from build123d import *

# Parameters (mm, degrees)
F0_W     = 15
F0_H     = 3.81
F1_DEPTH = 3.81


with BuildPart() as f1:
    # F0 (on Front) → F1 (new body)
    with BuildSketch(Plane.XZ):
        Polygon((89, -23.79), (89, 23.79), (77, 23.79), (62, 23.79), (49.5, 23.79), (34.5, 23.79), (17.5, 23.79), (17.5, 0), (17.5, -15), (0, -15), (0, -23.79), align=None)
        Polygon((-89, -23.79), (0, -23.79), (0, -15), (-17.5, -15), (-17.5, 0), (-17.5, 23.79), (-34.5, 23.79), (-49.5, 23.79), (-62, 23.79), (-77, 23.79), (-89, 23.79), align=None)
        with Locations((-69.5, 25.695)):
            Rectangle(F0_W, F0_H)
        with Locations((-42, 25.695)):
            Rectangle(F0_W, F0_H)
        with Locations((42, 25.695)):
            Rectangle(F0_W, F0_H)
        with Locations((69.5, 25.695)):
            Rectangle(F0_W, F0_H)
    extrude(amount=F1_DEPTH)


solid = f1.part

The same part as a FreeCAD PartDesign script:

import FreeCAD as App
import Part
import Sketcher

doc = App.newDocument("Part")
params = doc.addObject("Spreadsheet::Sheet", "Params")
for row, (alias, value) in enumerate([
    ("sketch1_width", "12 mm"),
    ("sketch1_width2", "15 mm"),
    ("sketch1_width3", "17 mm"),
    ("sketch1_width4", "35 mm"),
    ("sketch1_width5", "178 mm"),
    ("pad1_length", "3.81 mm"),
], start=1):
    params.set(f"A{row}", alias)
    params.set(f"B{row}", "=" + value)
    params.setAlias(f"B{row}", alias)

body = doc.addObject("PartDesign::Body", "Body")

# Sketch on XZ plane
sketch1 = doc.addObject("Sketcher::SketchObject", "Sketch")
body.addObject(sketch1)
sketch1.AttachmentSupport = (doc.XZ_Plane, [""])
sketch1.MapMode = "FlatFace"
sketch1.addGeometry(Part.LineSegment(App.Vector(89, -23.8, 0), App.Vector(89, 23.8, 0)), False)
sketch1.addGeometry(Part.LineSegment(App.Vector(89, 23.8, 0), App.Vector(77, 23.8, 0)), False)
sketch1.addGeometry(Part.LineSegment(App.Vector(77, 23.8, 0), App.Vector(77, 27.6, 0)), False)
sketch1.addGeometry(Part.LineSegment(App.Vector(77, 27.6, 0), App.Vector(62, 27.6, 0)), False)
sketch1.addGeometry(Part.LineSegment(App.Vector(62, 27.6, 0), App.Vector(62, 23.8, 0)), False)
sketch1.addGeometry(Part.LineSegment(App.Vector(62, 23.8, 0), App.Vector(49.5, 23.8, 0)), False)
sketch1.addGeometry(Part.LineSegment(App.Vector(49.5, 23.8, 0), App.Vector(49.5, 27.6, 0)), False)
sketch1.addGeometry(Part.LineSegment(App.Vector(49.5, 27.6, 0), App.Vector(34.5, 27.6, 0)), False)
sketch1.addGeometry(Part.LineSegment(App.Vector(34.5, 27.6, 0), App.Vector(34.5, 23.8, 0)), False)
sketch1.addGeometry(Part.LineSegment(App.Vector(34.5, 23.8, 0), App.Vector(17.5, 23.8, 0)), False)
sketch1.addGeometry(Part.LineSegment(App.Vector(17.5, 23.8, 0), App.Vector(17.5, -15, 0)), False)
sketch1.addGeometry(Part.LineSegment(App.Vector(17.5, -15, 0), App.Vector(-17.5, -15, 0)), False)
sketch1.addGeometry(Part.LineSegment(App.Vector(-17.5, -15, 0), App.Vector(-17.5, 23.8, 0)), False)
sketch1.addGeometry(Part.LineSegment(App.Vector(-17.5, 23.8, 0), App.Vector(-34.5, 23.8, 0)), False)
sketch1.addGeometry(Part.LineSegment(App.Vector(-34.5, 23.8, 0), App.Vector(-34.5, 27.6, 0)), False)
sketch1.addGeometry(Part.LineSegment(App.Vector(-34.5, 27.6, 0), App.Vector(-49.5, 27.6, 0)), False)
sketch1.addGeometry(Part.LineSegment(App.Vector(-49.5, 27.6, 0), App.Vector(-49.5, 23.8, 0)), False)
sketch1.addGeometry(Part.LineSegment(App.Vector(-49.5, 23.8, 0), App.Vector(-62, 23.8, 0)), False)
sketch1.addGeometry(Part.LineSegment(App.Vector(-62, 23.8, 0), App.Vector(-62, 27.6, 0)), False)
sketch1.addGeometry(Part.LineSegment(App.Vector(-62, 27.6, 0), App.Vector(-77, 27.6, 0)), False)
sketch1.addGeometry(Part.LineSegment(App.Vector(-77, 27.6, 0), App.Vector(-77, 23.8, 0)), False)
sketch1.addGeometry(Part.LineSegment(App.Vector(-77, 23.8, 0), App.Vector(-89, 23.8, 0)), False)
sketch1.addGeometry(Part.LineSegment(App.Vector(-89, 23.8, 0), App.Vector(-89, -23.8, 0)), False)
sketch1.addGeometry(Part.LineSegment(App.Vector(-89, -23.8, 0), App.Vector(89, -23.8, 0)), False)
sketch1.addConstraint(Sketcher.Constraint("Coincident", 0, 2, 1, 1))
sketch1.addConstraint(Sketcher.Constraint("Coincident", 1, 2, 2, 1))
sketch1.addConstraint(Sketcher.Constraint("Coincident", 2, 2, 3, 1))
sketch1.addConstraint(Sketcher.Constraint("Coincident", 3, 2, 4, 1))
sketch1.addConstraint(Sketcher.Constraint("Coincident", 4, 2, 5, 1))
sketch1.addConstraint(Sketcher.Constraint("Coincident", 5, 2, 6, 1))
sketch1.addConstraint(Sketcher.Constraint("Coincident", 6, 2, 7, 1))
sketch1.addConstraint(Sketcher.Constraint("Coincident", 7, 2, 8, 1))
sketch1.addConstraint(Sketcher.Constraint("Coincident", 8, 2, 9, 1))
sketch1.addConstraint(Sketcher.Constraint("Coincident", 9, 2, 10, 1))
sketch1.addConstraint(Sketcher.Constraint("Coincident", 10, 2, 11, 1))
sketch1.addConstraint(Sketcher.Constraint("Coincident", 11, 2, 12, 1))
sketch1.addConstraint(Sketcher.Constraint("Coincident", 12, 2, 13, 1))
sketch1.addConstraint(Sketcher.Constraint("Coincident", 13, 2, 14, 1))
sketch1.addConstraint(Sketcher.Constraint("Coincident", 14, 2, 15, 1))
sketch1.addConstraint(Sketcher.Constraint("Coincident", 15, 2, 16, 1))
sketch1.addConstraint(Sketcher.Constraint("Coincident", 16, 2, 17, 1))
sketch1.addConstraint(Sketcher.Constraint("Coincident", 17, 2, 18, 1))
sketch1.addConstraint(Sketcher.Constraint("Coincident", 18, 2, 19, 1))
sketch1.addConstraint(Sketcher.Constraint("Coincident", 19, 2, 20, 1))
sketch1.addConstraint(Sketcher.Constraint("Coincident", 20, 2, 21, 1))
sketch1.addConstraint(Sketcher.Constraint("Coincident", 21, 2, 22, 1))
sketch1.addConstraint(Sketcher.Constraint("Coincident", 22, 2, 23, 1))
sketch1.addConstraint(Sketcher.Constraint("Coincident", 23, 2, 0, 1))
sketch1.addConstraint(Sketcher.Constraint("Vertical", 0))
sketch1.addConstraint(Sketcher.Constraint("Horizontal", 1))
sketch1.addConstraint(Sketcher.Constraint("Vertical", 2))
sketch1.addConstraint(Sketcher.Constraint("Horizontal", 3))
sketch1.addConstraint(Sketcher.Constraint("Vertical", 4))
sketch1.addConstraint(Sketcher.Constraint("Horizontal", 5))
sketch1.addConstraint(Sketcher.Constraint("Vertical", 6))
sketch1.addConstraint(Sketcher.Constraint("Horizontal", 7))
sketch1.addConstraint(Sketcher.Constraint("Vertical", 8))
sketch1.addConstraint(Sketcher.Constraint("Horizontal", 9))
sketch1.addConstraint(Sketcher.Constraint("Vertical", 10))
sketch1.addConstraint(Sketcher.Constraint("Horizontal", 11))
sketch1.addConstraint(Sketcher.Constraint("Vertical", 12))
sketch1.addConstraint(Sketcher.Constraint("Horizontal", 13))
sketch1.addConstraint(Sketcher.Constraint("Vertical", 14))
sketch1.addConstraint(Sketcher.Constraint("Horizontal", 15))
sketch1.addConstraint(Sketcher.Constraint("Vertical", 16))
sketch1.addConstraint(Sketcher.Constraint("Horizontal", 17))
sketch1.addConstraint(Sketcher.Constraint("Vertical", 18))
sketch1.addConstraint(Sketcher.Constraint("Horizontal", 19))
sketch1.addConstraint(Sketcher.Constraint("Vertical", 20))
sketch1.addConstraint(Sketcher.Constraint("Horizontal", 21))
sketch1.addConstraint(Sketcher.Constraint("Vertical", 22))
sketch1.addConstraint(Sketcher.Constraint("Horizontal", 23))
sketch1.addConstraint(Sketcher.Constraint("Symmetric", 0, 2, 22, 2, -1, 1))
sketch1.addConstraint(Sketcher.Constraint("Symmetric", 9, 2, 12, 2, -2))
sketch1.addConstraint(Sketcher.Constraint("Symmetric", 7, 2, 14, 2, -2))
sketch1.addConstraint(Sketcher.Constraint("Symmetric", 5, 2, 16, 2, -2))
sketch1.addConstraint(Sketcher.Constraint("Symmetric", 3, 2, 18, 2, -2))
sketch1.addConstraint(Sketcher.Constraint("Symmetric", 1, 2, 20, 2, -2))
sketch1.addConstraint(Sketcher.Constraint("Horizontal", 1, 2, 4, 2))
sketch1.addConstraint(Sketcher.Constraint("Horizontal", 3, 2, 6, 2))
sketch1.addConstraint(Sketcher.Constraint("Horizontal", 5, 2, 8, 2))
sketch1.addConstraint(Sketcher.Constraint("Equal", 3, 7))
sketch1.addConstraint(Sketcher.Constraint("DistanceX", 1, 2, 1, 1, 12.0))
sketch1.addConstraint(Sketcher.Constraint("DistanceX", 3, 2, 3, 1, 15.0))
sketch1.addConstraint(Sketcher.Constraint("DistanceX", 9, 2, 9, 1, 17.0))
sketch1.addConstraint(Sketcher.Constraint("DistanceX", 11, 2, 11, 1, 35.0))
sketch1.addConstraint(Sketcher.Constraint("DistanceX", 23, 1, 23, 2, 178.0))
sketch1.addConstraint(Sketcher.Constraint("DistanceY", 10, 2, -1, 1, 15.0))
sketch1.addConstraint(Sketcher.Constraint("DistanceY", 0, 1, 0, 2, 47.58))
sketch1.addConstraint(Sketcher.Constraint("DistanceY", 2, 1, 2, 2, 3.81))
sketch1.setExpression("Constraints[58]", "Params.sketch1_width")
sketch1.setExpression("Constraints[59]", "Params.sketch1_width2")
sketch1.setExpression("Constraints[60]", "Params.sketch1_width3")
sketch1.setExpression("Constraints[61]", "Params.sketch1_width4")
sketch1.setExpression("Constraints[62]", "Params.sketch1_width5")
pad1 = doc.addObject("PartDesign::Pad", "Pad")
body.addObject(pad1)
pad1.Profile = sketch1
pad1.setExpression("Length", "Params.pad1_length")

doc.recompute()
